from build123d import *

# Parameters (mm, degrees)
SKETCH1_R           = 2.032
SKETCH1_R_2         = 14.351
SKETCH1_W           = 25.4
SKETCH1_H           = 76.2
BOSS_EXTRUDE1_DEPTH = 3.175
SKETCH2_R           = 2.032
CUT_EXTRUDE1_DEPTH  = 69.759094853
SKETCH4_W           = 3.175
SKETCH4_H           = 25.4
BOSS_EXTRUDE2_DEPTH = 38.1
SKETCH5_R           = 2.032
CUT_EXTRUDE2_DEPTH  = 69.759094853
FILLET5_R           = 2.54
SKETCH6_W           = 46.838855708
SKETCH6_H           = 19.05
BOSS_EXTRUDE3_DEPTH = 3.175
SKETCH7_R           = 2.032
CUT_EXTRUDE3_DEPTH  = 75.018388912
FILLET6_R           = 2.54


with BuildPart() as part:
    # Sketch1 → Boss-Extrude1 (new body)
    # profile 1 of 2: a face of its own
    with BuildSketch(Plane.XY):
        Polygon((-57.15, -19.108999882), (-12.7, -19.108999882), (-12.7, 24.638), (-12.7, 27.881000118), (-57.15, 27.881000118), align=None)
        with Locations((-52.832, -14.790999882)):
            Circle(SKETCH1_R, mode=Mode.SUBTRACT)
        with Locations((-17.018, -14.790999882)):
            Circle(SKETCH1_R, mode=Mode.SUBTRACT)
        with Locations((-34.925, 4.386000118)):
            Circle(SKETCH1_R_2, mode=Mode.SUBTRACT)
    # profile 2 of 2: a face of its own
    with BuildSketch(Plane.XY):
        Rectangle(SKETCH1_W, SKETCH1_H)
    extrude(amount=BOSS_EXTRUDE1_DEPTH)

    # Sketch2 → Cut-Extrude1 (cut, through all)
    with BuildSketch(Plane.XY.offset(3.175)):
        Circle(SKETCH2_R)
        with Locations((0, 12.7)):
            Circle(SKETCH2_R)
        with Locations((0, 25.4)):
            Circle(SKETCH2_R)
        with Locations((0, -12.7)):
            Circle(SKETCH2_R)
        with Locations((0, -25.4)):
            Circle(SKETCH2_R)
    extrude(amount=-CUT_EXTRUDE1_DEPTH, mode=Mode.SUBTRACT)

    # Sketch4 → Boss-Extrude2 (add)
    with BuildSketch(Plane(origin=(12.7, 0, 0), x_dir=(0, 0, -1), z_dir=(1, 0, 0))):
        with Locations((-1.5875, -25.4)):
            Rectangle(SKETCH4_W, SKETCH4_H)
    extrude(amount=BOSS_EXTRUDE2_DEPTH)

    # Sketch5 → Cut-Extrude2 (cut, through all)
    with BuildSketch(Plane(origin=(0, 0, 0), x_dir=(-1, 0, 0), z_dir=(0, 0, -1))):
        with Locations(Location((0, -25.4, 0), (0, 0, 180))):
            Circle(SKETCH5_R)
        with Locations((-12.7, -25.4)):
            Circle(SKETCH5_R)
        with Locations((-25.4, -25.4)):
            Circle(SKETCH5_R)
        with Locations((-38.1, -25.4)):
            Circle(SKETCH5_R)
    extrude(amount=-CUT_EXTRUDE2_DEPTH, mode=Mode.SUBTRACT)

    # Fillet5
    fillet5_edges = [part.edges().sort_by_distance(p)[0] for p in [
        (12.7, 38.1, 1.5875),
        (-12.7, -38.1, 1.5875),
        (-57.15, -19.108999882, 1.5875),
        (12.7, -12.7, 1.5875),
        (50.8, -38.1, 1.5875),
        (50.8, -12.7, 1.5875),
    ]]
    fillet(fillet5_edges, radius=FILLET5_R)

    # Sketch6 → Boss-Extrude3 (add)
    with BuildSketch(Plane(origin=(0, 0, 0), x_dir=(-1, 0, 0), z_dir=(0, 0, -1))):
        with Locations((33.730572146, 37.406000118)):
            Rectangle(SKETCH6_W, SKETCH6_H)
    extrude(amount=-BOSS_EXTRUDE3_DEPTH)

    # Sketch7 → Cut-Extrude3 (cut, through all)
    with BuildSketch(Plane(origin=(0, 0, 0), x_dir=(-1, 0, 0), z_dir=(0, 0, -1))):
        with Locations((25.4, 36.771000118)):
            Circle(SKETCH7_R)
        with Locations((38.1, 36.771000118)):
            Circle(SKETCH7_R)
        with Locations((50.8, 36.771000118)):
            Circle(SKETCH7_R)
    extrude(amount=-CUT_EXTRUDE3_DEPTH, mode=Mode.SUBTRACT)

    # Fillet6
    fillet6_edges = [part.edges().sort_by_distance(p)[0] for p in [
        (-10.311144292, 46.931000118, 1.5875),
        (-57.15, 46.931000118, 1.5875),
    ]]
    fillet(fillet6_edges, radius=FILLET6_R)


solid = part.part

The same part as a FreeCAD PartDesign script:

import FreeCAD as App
import Part
import Sketcher
Q = App.Units.Quantity


def edges_at(feature, points):
    """Names of the edges that pass closest to the given points."""
    edges = feature.Shape.Edges
    near = lambda p: min(range(len(edges)), key=lambda i: edges[i].distToShape(Part.Vertex(*p))[0])
    return sorted({f"Edge{near(p) + 1}" for p in points})


def add_polygon(sketch, points):
    """Adds a closed chain of lines whose ends are joined by coincident constraints."""
    first, n = sketch.GeometryCount, len(points)
    for a, b in zip(points, points[1:] + points[:1]):
        sketch.addGeometry(Part.LineSegment(App.Vector(*a, 0), App.Vector(*b, 0)), False)
    for i in range(n):
        sketch.addConstraint(Sketcher.Constraint("Coincident", first + i, 2, first + (i + 1) % n, 1))

doc = App.newDocument("Part")
body = doc.addObject("PartDesign::Body", "Body")

# Sketch on XY plane
sketch1 = body.newObject("Sketcher::SketchObject", "Sketch")
sketch1.AttachmentSupport = (doc.getObject("XY_Plane"), [""])
sketch1.MapMode = "FlatFace"
add_polygon(sketch1, [(-57.1, -19.1), (-12.7, -19.1), (-12.7, -38.1), (12.7, -38.1), (12.7, 38.1), (-12.7, 38.1), (-12.7, 27.9), (-57.1, 27.9)])  # lines 0-7
sketch1.addGeometry(Part.Circle(App.Vector(-52.8, -14.8, 0), App.Vector(0, 0, 1), 2), False)  # 8
sketch1.addGeometry(Part.Circle(App.Vector(-17, -14.8, 0), App.Vector(0, 0, 1), 2), False)  # 9
sketch1.addGeometry(Part.Circle(App.Vector(-34.9, 4.4, 0), App.Vector(0, 0, 1), 14.4), False)  # 10
sketch1.addConstraint([
    Sketcher.Constraint("Horizontal", 0),
    Sketcher.Constraint("Vertical", 1),
    Sketcher.Constraint("Horizontal", 2),
    Sketcher.Constraint("Vertical", 3),
    Sketcher.Constraint("Horizontal", 4),
    Sketcher.Constraint("Vertical", 5),
    Sketcher.Constraint("Horizontal", 6),
    Sketcher.Constraint("Vertical", 7),
    Sketcher.Constraint("Equal", 8, 9),
    Sketcher.Constraint("Symmetric", 1, 2, 3, 2, -1, 1),
    Sketcher.Constraint("Horizontal", 8, 3, 9, 3),
    Sketcher.Constraint("Vertical", 1, 2, 4, 2),
    Sketcher.Constraint("Diameter", 8, Q("0.16 in")),
    Sketcher.Constraint("Diameter", 10, Q("1.13 in")),
    Sketcher.Constraint("DistanceX", 2, 1, 2, 2, Q("1 in")),
    Sketcher.Constraint("DistanceY", 3, 1, 3, 2, Q("3 in")),
    Sketcher.Constraint("DistanceX", 0, 1, 0, 2, Q("1.75 in")),
    Sketcher.Constraint("DistanceY", 7, 2, 7, 1, Q("1.85 in")),
    Sketcher.Constraint("DistanceX", 8, 3, -1, 1, Q("2.08 in")),
    Sketcher.Constraint("DistanceX", 9, 3, -1, 1, Q("0.67 in")),
    Sketcher.Constraint("DistanceY", 0, 2, 9, 3, Q("0.17 in")),
    Sketcher.Constraint("DistanceX", 10, 3, -1, 1, Q("1.375 in")),
    Sketcher.Constraint("DistanceY", 9, 3, 10, 3, Q("0.755 in")),
    Sketcher.Constraint("DistanceY", 1, 2, 1, 1, 18.991),
])
pad1 = body.newObject("PartDesign::Pad", "Pad")
pad1.Profile = sketch1
pad1.Length = Q("0.125 in")

# Sketch on XY plane
sketch2 = body.newObject("Sketcher::SketchObject", "Sketch001")
sketch2.AttachmentSupport = (doc.getObject("XY_Plane"), [""])
sketch2.MapMode = "FlatFace"
sketch2.AttachmentOffset = App.Placement(App.Vector(0, 0, 0.125 * 25.4), App.Rotation())
sketch2.addGeometry([
    Part.Circle(App.Vector(0, 0, 0), App.Vector(0, 0, 1), 2),  # 0
    Part.Circle(App.Vector(0, 12.7, 0), App.Vector(0, 0, 1), 2),  # 1
    Part.Circle(App.Vector(0, 25.4, 0), App.Vector(0, 0, 1), 2),  # 2
    Part.Circle(App.Vector(0, -12.7, 0), App.Vector(0, 0, 1), 2),  # 3
    Part.Circle(App.Vector(0, -25.4, 0), App.Vector(0, 0, 1), 2),  # 4
], False)
sketch2.addConstraint([
    Sketcher.Constraint("Coincident", 0, 3, -1, 1),
    Sketcher.Constraint("Equal", 0, 1),
    Sketcher.Constraint("Equal", 1, 2),
    Sketcher.Constraint("Equal", 2, 3),
    Sketcher.Constraint("Equal", 3, 4),
    Sketcher.Constraint("Symmetric", 1, 3, 3, 3, -1, 1),
    Sketcher.Constraint("Symmetric", 2, 3, 4, 3, -1, 1),
    Sketcher.Constraint("PointOnObject", 1, 3, -2),
    Sketcher.Constraint("PointOnObject", 2, 3, -2),
    Sketcher.Constraint("Diameter", 0, Q("0.16 in")),
    Sketcher.Constraint("DistanceY", -1, 1, 2, 3, Q("1 in")),
    Sketcher.Constraint("DistanceY", 3, 3, 1, 3, Q("1 in")),
])
pocket1 = body.newObject("PartDesign::Pocket", "Pocket")
pocket1.Profile = sketch2
pocket1.Type = "ThroughAll"

# Sketch on YZ plane
sketch3 = body.newObject("Sketcher::SketchObject", "Sketch002")
sketch3.AttachmentSupport = (doc.getObject("YZ_Plane"), [""])
sketch3.MapMode = "FlatFace"
sketch3.AttachmentOffset = App.Placement(App.Vector(0, 0, 0.5 * 25.4), App.Rotation())
add_polygon(sketch3, [(-12.7, 3.2), (-38.1, 3.2), (-38.1, 0), (-12.7, 0)])  # lines 0-3
sketch3.addConstraint([
    Sketcher.Constraint("Horizontal", 0),
    Sketcher.Constraint("Vertical", 1),
    Sketcher.Constraint("Horizontal", 2),
    Sketcher.Constraint("Vertical", 3),
    Sketcher.Constraint("PointOnObject", 1, 2, -1),
    Sketcher.Constraint("DistanceX", 0, 2, 0, 1, Q("1 in")),
    Sketcher.Constraint("DistanceX", 0, 2, -1, 1, Q("1.5 in")),
    Sketcher.Constraint("DistanceY", 1, 2, 1, 1, Q("0.125 in")),
])
pad2 = body.newObject("PartDesign::Pad", "Pad001")
pad2.Profile = sketch3
pad2.Length = Q("1.5 in")

# Sketch on XY plane
sketch4 = body.newObject("Sketcher::SketchObject", "Sketch003")
sketch4.AttachmentSupport = (doc.getObject("XY_Plane"), [""])
sketch4.MapMode = "FlatFace"
sketch4.addGeometry([
    Part.Circle(App.Vector(0, -25.4, 0), App.Vector(0, 0, 1), 2),
    Part.Circle(App.Vector(12.7, -25.4, 0), App.Vector(0, 0, 1), 2),
    Part.Circle(App.Vector(25.4, -25.4, 0), App.Vector(0, 0, 1), 2),
    Part.Circle(App.Vector(38.1, -25.4, 0), App.Vector(0, 0, 1), 2),
], False)
sketch4.addConstraint([
    Sketcher.Constraint("Equal", 0, 1),
    Sketcher.Constraint("Equal", 1, 2),
    Sketcher.Constraint("Equal", 2, 3),
    Sketcher.Constraint("PointOnObject", 0, 3, -2),
    Sketcher.Constraint("Horizontal", 0, 3, 1, 3),
    Sketcher.Constraint("Horizontal", 1, 3, 2, 3),
    Sketcher.Constraint("Horizontal", 2, 3, 3, 3),
    Sketcher.Constraint("Diameter", 0, Q("0.16 in")),
    Sketcher.Constraint("DistanceY", 0, 3, -1, 1, Q("1 in")),
    Sketcher.Constraint("DistanceX", -1, 1, 2, 3, Q("1 in")),
    Sketcher.Constraint("DistanceX", 1, 3, 3, 3, Q("1 in")),
    Sketcher.Constraint("DistanceX", -1, 1, 1, 3, Q("0.5 in")),
])
pocket2 = body.newObject("PartDesign::Pocket", "Pocket001")
pocket2.Profile = sketch4
pocket2.Type = "ThroughAll"
pocket2.Reversed = True
doc.recompute()

fillet = body.newObject("PartDesign::Fillet", "Fillet")
fillet.Base = (pocket2, edges_at(pocket2, [
    (12.7, 38.1, 1.587),
    (-12.7, -38.1, 1.587),
    (-57.15, -19.109, 1.587),
    (12.7, -12.7, 1.587),
    (50.8, -38.1, 1.587),
    (50.8, -12.7, 1.587),
]))
fillet.Radius = Q("0.1 in")

# Sketch on XY plane
sketch5 = body.newObject("Sketcher::SketchObject", "Sketch004")
sketch5.AttachmentSupport = (doc.getObject("XY_Plane"), [""])
sketch5.MapMode = "FlatFace"
add_polygon(sketch5, [(-10, 47), (-10, 28), (-57, 28), (-57, 47)])  # lines 0-3
sketch5.addConstraint([
    Sketcher.Constraint("Vertical", 0),
    Sketcher.Constraint("Horizontal", 1),
    Sketcher.Constraint("Vertical", 2),
    Sketcher.Constraint("Horizontal", 3),
    Sketcher.Constraint("DistanceY", 0, 2, 0, 1, Q("0.75 in")),
    Sketcher.Constraint("DistanceX", 1, 2, -1, 1, Q("2.25 in")),
    Sketcher.Constraint("DistanceY", -1, 1, 0, 2, 27.881),
    Sketcher.Constraint("DistanceX", 1, 2, 1, 1, 46.838856),
])
pad3 = body.newObject("PartDesign::Pad", "Pad002")
pad3.Profile = sketch5
pad3.Length = Q("0.125 in")

# Sketch on XY plane
sketch6 = body.newObject("Sketcher::SketchObject", "Sketch005")
sketch6.AttachmentSupport = (doc.getObject("XY_Plane"), [""])
sketch6.MapMode = "FlatFace"
sketch6.addGeometry([
    Part.Circle(App.Vector(-25.4, 36.8, 0), App.Vector(0, 0, 1), 2),
    Part.Circle(App.Vector(-38.1, 36.8, 0), App.Vector(0, 0, 1), 2),
    Part.Circle(App.Vector(-50.8, 36.8, 0), App.Vector(0, 0, 1), 2),
], False)
sketch6.addConstraint([
    Sketcher.Constraint("Equal", 0, 1),
    Sketcher.Constraint("Equal", 1, 2),
    Sketcher.Constraint("Horizontal", 0, 3, 1, 3),
    Sketcher.Constraint("Horizontal", 1, 3, 2, 3),
    Sketcher.Constraint("Diameter", 0, Q("0.16 in")),
    Sketcher.Constraint("DistanceX", 0, 3, -1, 1, Q("1 in")),
    Sketcher.Constraint("DistanceX", 2, 3, -1, 1, Q("2 in")),
    Sketcher.Constraint("DistanceX", 1, 3, -1, 1, Q("1.5 in")),
    Sketcher.Constraint("DistanceY", -1, 1, 0, 3, 36.771),
])
pocket3 = body.newObject("PartDesign::Pocket", "Pocket002")
pocket3.Profile = sketch6
pocket3.Type = "ThroughAll"
pocket3.Reversed = True
doc.recompute()

fillet2 = body.newObject("PartDesign::Fillet", "Fillet001")
fillet2.Base = (pocket3, edges_at(pocket3, [(-10.311, 46.931, 1.587), (-57.15, 46.931, 1.587)]))
fillet2.Radius = Q("0.1 in")

doc.recompute()
